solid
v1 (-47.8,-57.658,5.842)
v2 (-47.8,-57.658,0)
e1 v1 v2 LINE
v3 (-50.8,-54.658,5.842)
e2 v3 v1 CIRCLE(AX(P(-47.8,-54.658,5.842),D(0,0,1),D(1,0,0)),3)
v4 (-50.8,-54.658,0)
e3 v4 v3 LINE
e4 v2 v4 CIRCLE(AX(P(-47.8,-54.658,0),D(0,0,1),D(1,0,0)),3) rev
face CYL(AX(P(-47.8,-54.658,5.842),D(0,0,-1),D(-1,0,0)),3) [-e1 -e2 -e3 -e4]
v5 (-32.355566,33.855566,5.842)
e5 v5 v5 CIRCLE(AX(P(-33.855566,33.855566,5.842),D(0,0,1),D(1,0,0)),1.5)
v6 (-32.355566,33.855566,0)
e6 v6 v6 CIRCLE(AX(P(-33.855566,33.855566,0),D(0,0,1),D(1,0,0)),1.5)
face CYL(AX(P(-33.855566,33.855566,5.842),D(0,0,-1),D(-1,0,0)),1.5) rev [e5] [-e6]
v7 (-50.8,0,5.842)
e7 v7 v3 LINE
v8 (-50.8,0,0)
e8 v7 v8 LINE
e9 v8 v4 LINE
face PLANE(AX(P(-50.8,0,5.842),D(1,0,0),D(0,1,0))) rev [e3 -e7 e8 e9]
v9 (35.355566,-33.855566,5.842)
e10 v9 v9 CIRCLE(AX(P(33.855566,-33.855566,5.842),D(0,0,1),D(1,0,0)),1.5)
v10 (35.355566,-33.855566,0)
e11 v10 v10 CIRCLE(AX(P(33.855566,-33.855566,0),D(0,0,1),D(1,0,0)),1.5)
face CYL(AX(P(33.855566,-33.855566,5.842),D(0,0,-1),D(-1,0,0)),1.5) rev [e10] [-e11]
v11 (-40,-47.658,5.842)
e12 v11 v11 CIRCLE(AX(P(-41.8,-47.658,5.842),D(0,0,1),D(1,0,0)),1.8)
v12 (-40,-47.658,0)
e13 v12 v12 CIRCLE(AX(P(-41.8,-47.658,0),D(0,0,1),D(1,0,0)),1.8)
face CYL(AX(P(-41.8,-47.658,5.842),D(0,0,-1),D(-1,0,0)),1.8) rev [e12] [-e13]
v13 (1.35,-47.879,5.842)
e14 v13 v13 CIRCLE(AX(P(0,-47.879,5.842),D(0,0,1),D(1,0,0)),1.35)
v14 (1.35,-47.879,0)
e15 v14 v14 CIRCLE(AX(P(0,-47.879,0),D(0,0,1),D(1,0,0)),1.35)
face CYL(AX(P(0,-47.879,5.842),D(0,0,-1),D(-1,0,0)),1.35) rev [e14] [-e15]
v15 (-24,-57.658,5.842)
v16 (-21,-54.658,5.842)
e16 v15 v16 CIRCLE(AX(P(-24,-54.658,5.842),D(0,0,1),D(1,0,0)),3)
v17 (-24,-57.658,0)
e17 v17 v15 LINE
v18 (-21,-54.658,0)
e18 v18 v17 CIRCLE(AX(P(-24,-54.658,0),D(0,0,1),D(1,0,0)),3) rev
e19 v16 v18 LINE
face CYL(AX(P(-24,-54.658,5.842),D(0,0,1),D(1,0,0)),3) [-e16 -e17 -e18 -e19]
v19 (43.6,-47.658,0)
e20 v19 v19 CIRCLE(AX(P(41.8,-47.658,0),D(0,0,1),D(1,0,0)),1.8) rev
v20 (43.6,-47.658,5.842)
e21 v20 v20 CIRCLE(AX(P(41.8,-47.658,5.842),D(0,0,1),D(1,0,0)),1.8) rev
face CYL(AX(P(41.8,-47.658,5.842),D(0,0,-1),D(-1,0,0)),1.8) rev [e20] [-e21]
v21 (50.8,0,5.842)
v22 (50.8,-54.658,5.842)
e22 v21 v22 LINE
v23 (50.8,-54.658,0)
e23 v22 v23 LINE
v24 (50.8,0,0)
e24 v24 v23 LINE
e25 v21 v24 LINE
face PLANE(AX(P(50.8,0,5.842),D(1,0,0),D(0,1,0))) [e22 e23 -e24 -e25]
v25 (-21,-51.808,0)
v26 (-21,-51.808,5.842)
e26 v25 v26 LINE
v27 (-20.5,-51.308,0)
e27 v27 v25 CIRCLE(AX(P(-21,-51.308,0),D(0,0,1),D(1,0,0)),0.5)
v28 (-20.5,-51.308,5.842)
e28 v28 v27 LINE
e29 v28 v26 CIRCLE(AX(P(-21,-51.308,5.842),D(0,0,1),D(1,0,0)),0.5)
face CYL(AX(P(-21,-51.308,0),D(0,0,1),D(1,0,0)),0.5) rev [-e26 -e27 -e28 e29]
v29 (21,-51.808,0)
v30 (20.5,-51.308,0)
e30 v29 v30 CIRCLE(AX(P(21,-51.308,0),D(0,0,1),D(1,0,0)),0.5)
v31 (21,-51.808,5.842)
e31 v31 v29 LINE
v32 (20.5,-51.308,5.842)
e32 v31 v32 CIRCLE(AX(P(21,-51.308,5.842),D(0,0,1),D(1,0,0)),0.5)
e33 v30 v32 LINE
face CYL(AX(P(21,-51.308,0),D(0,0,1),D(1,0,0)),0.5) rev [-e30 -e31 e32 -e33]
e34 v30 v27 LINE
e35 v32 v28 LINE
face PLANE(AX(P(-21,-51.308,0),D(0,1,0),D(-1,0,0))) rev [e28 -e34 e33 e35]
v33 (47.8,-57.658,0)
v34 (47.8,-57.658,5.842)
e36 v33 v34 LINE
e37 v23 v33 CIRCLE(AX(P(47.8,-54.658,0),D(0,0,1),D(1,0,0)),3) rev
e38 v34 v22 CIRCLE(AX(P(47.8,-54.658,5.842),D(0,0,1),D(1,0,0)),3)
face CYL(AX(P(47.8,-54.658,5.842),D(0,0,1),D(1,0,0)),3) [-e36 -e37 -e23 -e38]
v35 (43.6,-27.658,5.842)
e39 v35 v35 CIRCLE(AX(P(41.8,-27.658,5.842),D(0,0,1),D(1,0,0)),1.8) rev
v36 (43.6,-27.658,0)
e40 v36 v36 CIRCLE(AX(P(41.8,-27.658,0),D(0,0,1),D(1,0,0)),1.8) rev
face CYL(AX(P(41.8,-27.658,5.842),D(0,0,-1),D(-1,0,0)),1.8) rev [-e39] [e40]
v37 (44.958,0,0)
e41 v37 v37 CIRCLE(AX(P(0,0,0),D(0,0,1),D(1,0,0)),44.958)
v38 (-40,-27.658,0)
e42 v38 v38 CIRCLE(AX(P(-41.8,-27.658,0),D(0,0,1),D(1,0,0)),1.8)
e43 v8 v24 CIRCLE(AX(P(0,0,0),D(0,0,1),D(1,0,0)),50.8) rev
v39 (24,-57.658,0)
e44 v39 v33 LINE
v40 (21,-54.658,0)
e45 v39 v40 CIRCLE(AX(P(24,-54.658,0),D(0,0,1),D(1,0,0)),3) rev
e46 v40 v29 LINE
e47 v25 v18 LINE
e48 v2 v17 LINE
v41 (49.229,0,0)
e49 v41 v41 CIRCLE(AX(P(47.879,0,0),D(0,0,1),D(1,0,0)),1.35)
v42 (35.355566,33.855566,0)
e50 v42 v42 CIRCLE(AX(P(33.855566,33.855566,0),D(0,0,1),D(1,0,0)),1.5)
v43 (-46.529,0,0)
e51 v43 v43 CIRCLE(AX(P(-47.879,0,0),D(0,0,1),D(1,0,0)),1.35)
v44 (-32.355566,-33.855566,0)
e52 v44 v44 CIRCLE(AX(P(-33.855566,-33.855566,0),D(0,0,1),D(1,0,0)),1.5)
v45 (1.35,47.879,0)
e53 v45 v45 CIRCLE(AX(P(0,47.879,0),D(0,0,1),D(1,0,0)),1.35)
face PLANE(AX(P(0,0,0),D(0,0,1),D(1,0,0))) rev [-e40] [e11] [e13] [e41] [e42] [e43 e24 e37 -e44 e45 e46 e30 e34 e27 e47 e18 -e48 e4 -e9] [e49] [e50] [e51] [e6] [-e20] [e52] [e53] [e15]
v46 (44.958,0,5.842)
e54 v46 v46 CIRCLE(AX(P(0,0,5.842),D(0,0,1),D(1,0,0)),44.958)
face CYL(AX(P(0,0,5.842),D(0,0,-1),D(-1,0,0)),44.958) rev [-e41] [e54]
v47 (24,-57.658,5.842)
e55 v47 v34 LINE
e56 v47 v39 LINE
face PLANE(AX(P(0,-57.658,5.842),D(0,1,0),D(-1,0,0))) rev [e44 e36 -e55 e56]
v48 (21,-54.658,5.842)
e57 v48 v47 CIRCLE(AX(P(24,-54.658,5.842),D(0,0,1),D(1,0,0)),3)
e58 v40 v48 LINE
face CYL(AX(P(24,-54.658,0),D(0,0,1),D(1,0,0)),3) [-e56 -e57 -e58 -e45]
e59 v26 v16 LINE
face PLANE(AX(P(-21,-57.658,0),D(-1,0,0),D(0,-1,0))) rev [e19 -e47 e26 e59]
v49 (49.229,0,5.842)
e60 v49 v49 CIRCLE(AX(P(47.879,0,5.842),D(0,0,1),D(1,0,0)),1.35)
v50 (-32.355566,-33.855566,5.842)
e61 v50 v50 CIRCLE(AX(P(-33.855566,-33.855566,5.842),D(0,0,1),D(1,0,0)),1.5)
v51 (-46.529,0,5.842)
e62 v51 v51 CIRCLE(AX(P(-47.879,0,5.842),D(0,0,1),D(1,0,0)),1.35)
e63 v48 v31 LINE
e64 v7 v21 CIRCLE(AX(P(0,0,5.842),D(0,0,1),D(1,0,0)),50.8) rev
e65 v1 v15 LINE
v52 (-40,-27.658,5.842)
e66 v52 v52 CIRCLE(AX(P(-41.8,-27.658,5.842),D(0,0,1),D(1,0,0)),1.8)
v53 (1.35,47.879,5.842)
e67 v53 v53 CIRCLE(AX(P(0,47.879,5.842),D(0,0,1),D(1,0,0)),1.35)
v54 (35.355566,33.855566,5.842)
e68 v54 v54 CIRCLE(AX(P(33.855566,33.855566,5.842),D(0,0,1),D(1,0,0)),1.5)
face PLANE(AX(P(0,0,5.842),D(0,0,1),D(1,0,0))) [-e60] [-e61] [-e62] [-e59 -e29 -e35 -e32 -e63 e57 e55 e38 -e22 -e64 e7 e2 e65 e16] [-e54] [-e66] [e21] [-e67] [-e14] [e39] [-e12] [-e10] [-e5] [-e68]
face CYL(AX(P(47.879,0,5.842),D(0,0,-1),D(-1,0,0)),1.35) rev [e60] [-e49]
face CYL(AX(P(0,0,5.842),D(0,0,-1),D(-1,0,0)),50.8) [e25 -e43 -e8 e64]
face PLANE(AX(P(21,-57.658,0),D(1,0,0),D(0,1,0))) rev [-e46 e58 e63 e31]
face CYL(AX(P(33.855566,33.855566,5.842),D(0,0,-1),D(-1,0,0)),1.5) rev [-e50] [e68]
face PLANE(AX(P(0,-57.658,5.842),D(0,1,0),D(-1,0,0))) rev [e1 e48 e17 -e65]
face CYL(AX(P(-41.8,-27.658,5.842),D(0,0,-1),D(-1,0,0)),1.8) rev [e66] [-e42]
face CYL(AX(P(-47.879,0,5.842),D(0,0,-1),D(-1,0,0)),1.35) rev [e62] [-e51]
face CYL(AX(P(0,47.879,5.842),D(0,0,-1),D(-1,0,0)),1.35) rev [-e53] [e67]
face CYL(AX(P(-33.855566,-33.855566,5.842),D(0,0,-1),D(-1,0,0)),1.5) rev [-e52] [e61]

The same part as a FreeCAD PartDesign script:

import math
import FreeCAD as App
import Part
import Sketcher
from FreeCAD import Vector


def edges_at(feature, points):
    """Names of the edges that pass closest to the given points."""
    edges = feature.Shape.Edges
    near = lambda p: min(range(len(edges)), key=lambda i: edges[i].distToShape(Part.Vertex(*p))[0])
    return sorted({f"Edge{near(p) + 1}" for p in points})

doc = App.newDocument("Part")
params = doc.addObject("Spreadsheet::Sheet", "Params")
for row, (alias, value) in enumerate([
    ("sketch1_diameter", "3 mm"),
    ("sketch1_diameter2", "3.6 mm"),
    ("sketch1_diameter3", "2.7 mm"),
    ("sketch1_radius", "50.8 mm"),
    ("pad1_length", "5.842 mm"),
    ("sketch2_width", "42 mm"),
    ("sketch2_height", "6.35 mm"),
    ("sketch3_diameter", "1 mm"),
    ("fillet_radius", "3 mm"),
], start=1):
    params.set(f"A{row}", alias)
    params.set(f"B{row}", "=" + value)
    params.setAlias(f"B{row}", alias)

body = doc.addObject("PartDesign::Body", "Body")

sketch1 = body.newObject("Sketcher::SketchObject", "Sketch")
sketch1.AttachmentSupport = (doc.getObject("XY_Plane"), [""])
sketch1.MapMode = "FlatFace"
sketch1.addGeometry(Part.LineSegment(Vector(-50.8, 0, 0), Vector(-50.8, -57.7, 0)), False)
sketch1.addGeometry(Part.LineSegment(Vector(-50.8, -57.7, 0), Vector(50.8, -57.7, 0)), False)
sketch1.addGeometry(Part.LineSegment(Vector(50.8, -57.7, 0), Vector(50.8, 0, 0)), False)
sketch1.addGeometry(Part.ArcOfCircle(Part.Circle(Vector(0, 0, 0), Vector(0, 0, 1), 50.8), math.radians(0), math.radians(180)), False)
sketch1.addGeometry(Part.Circle(Vector(-41.8, -47.7, 0), Vector(0, 0, 1), 1.8), False)
sketch1.addGeometry(Part.Circle(Vector(-41.8, -27.7, 0), Vector(0, 0, 1), 1.8), False)
sketch1.addGeometry(Part.Circle(Vector(-33.9, -33.9, 0), Vector(0, 0, 1), 1.5), False)
sketch1.addGeometry(Part.Circle(Vector(0, -47.9, 0), Vector(0, 0, 1), 1.4), False)
sketch1.addGeometry(Part.Circle(Vector(41.8, -47.7, 0), Vector(0, 0, 1), 1.8), False)
sketch1.addGeometry(Part.Circle(Vector(33.9, -33.9, 0), Vector(0, 0, 1), 1.5), False)
sketch1.addGeometry(Part.Circle(Vector(41.8, -27.7, 0), Vector(0, 0, 1), 1.8), False)
sketch1.addGeometry(Part.Circle(Vector(-47.9, 0, 0), Vector(0, 0, 1), 1.4), False)
sketch1.addGeometry(Part.Circle(Vector(-33.9, 33.9, 0), Vector(0, 0, 1), 1.5), False)
sketch1.addGeometry(Part.Circle(Vector(0, 0, 0), Vector(0, 0, 1), 45), False)
sketch1.addGeometry(Part.Circle(Vector(47.9, 0, 0), Vector(0, 0, 1), 1.4), False)
sketch1.addGeometry(Part.Circle(Vector(0, 47.9, 0), Vector(0, 0, 1), 1.4), False)
sketch1.addGeometry(Part.Circle(Vector(33.9, 33.9, 0), Vector(0, 0, 1), 1.5), False)
sketch1.addConstraint(Sketcher.Constraint("Coincident", 0, 2, 1, 1))
sketch1.addConstraint(Sketcher.Constraint("Coincident", 1, 2, 2, 1))
sketch1.addConstraint(Sketcher.Constraint("Tangent", 2, 2, 3, 1))
sketch1.addConstraint(Sketcher.Constraint("Tangent", 3, 2, 0, 1))
sketch1.addConstraint(Sketcher.Constraint("Vertical", 0))
sketch1.addConstraint(Sketcher.Constraint("Horizontal", 1))
sketch1.addConstraint(Sketcher.Constraint("Vertical", 2))
sketch1.addConstraint(Sketcher.Constraint("Coincident", 3, 3, -1, 1))
sketch1.addConstraint(Sketcher.Constraint("Coincident", 13, 3, -1, 1))
sketch1.addConstraint(Sketcher.Constraint("Equal", 4, 5))
sketch1.addConstraint(Sketcher.Constraint("Equal", 5, 8))
sketch1.addConstraint(Sketcher.Constraint("Equal", 6, 9))
sketch1.addConstraint(Sketcher.Constraint("Equal", 8, 10))
sketch1.addConstraint(Sketcher.Constraint("Equal", 7, 11))
sketch1.addConstraint(Sketcher.Constraint("Equal", 9, 12))
sketch1.addConstraint(Sketcher.Constraint("Equal", 11, 14))
sketch1.addConstraint(Sketcher.Constraint("Equal", 14, 15))
sketch1.addConstraint(Sketcher.Constraint("Equal", 12, 16))
sketch1.addConstraint(Sketcher.Constraint("Symmetric", 9, 3, 12, 3, -1, 1))
sketch1.addConstraint(Sketcher.Constraint("Symmetric", 11, 3, 14, 3, -1, 1))
sketch1.addConstraint(Sketcher.Constraint("Symmetric", 7, 3, 15, 3, -1, 1))
sketch1.addConstraint(Sketcher.Constraint("Symmetric", 6, 3, 16, 3, -1, 1))
sketch1.addConstraint(Sketcher.Constraint("Symmetric", 4, 3, 8, 3, -2))
sketch1.addConstraint(Sketcher.Constraint("Symmetric", 6, 3, 9, 3, -2))
sketch1.addConstraint(Sketcher.Constraint("Symmetric", 5, 3, 10, 3, -2))
sketch1.addConstraint(Sketcher.Constraint("PointOnObject", 7, 3, -2))
sketch1.addConstraint(Sketcher.Constraint("PointOnObject", 11, 3, -1))
sketch1.addConstraint(Sketcher.Constraint("Vertical", 4, 3, 5, 3))
sketch1.addConstraint(Sketcher.Constraint("Diameter", 6, 3.0))
sketch1.addConstraint(Sketcher.Constraint("Diameter", 4, 3.6))
sketch1.addConstraint(Sketcher.Constraint("Diameter", 7, 2.7))
sketch1.addConstraint(Sketcher.Constraint("Radius", 3, 50.8))
sketch1.addConstraint(Sketcher.Constraint("Diameter", 13, 89.916))
sketch1.addConstraint(Sketcher.Constraint("DistanceY", 4, 3, 5, 3, 20.0))
sketch1.addConstraint(Sketcher.Constraint("DistanceX", 0, 2, 4, 3, 9.0))
sketch1.addConstraint(Sketcher.Constraint("DistanceY", 0, 2, 4, 3, 10.0))
sketch1.addConstraint(Sketcher.Constraint("DistanceY", 0, 2, 0, 1, 57.658))
sketch1.addConstraint(Sketcher.Constraint("DistanceY", 7, 3, -1, 1, 47.879))
sketch1.addConstraint(Sketcher.Constraint("DistanceX", 11, 3, -1, 1, 47.879))
sketch1.addConstraint(Sketcher.Constraint("DistanceX", 6, 3, 9, 3, 67.711131))
sketch1.addConstraint(Sketcher.Constraint("DistanceY", 6, 3, 12, 3, 67.711131))
sketch1.setExpression("Constraints[28]", "Params.sketch1_diameter")
sketch1.setExpression("Constraints[29]", "Params.sketch1_diameter2")
sketch1.setExpression("Constraints[30]", "Params.sketch1_diameter3")
sketch1.setExpression("Constraints[31]", "Params.sketch1_radius")
pad1 = body.newObject("PartDesign::Pad", "Pad")
pad1.Profile = sketch1
pad1.setExpression("Length", "Params.pad1_length")

sketch2 = body.newObject("Sketcher::SketchObject", "Sketch001")
sketch2.AttachmentSupport = (doc.getObject("XY_Plane"), [""])
sketch2.MapMode = "FlatFace"
sketch2.AttachmentOffset = App.Placement(Vector(0, 0, 5.842), App.Rotation())
sketch2.addGeometry(Part.LineSegment(Vector(-21, -51, 0), Vector(-21, -58, 0)), False)
sketch2.addGeometry(Part.LineSegment(Vector(-21, -58, 0), Vector(21, -58, 0)), False)
sketch2.addGeometry(Part.LineSegment(Vector(21, -58, 0), Vector(21, -51, 0)), False)
sketch2.addGeometry(Part.LineSegment(Vector(21, -51, 0), Vector(-21, -51, 0)), False)
sketch2.addConstraint(Sketcher.Constraint("Coincident", 0, 2, 1, 1))
sketch2.addConstraint(Sketcher.Constraint("Coincident", 1, 2, 2, 1))
sketch2.addConstraint(Sketcher.Constraint("Coincident", 2, 2, 3, 1))
sketch2.addConstraint(Sketcher.Constraint("Coincident", 3, 2, 0, 1))
sketch2.addConstraint(Sketcher.Constraint("Vertical", 0))
sketch2.addConstraint(Sketcher.Constraint("Horizontal", 1))
sketch2.addConstraint(Sketcher.Constraint("Vertical", 2))
sketch2.addConstraint(Sketcher.Constraint("Horizontal", 3))
sketch2.addConstraint(Sketcher.Constraint("DistanceX", 1, 1, 1, 2, 42.0))
sketch2.addConstraint(Sketcher.Constraint("DistanceX", 0, 2, -1, 1, 21.0))
sketch2.addConstraint(Sketcher.Constraint("DistanceY", 0, 2, 0, 1, 6.35))
sketch2.addConstraint(Sketcher.Constraint("DistanceY", 0, 2, -1, 1, 57.658))
sketch2.setExpression("Constraints[8]", "Params.sketch2_width")
sketch2.setExpression("Constraints[10]", "Params.sketch2_height")
pocket1 = body.newObject("PartDesign::Pocket", "Pocket")
pocket1.Profile = sketch2
pocket1.Type = "ThroughAll"

sketch3 = body.newObject("Sketcher::SketchObject", "Sketch002")
sketch3.AttachmentSupport = (doc.getObject("XY_Plane"), [""])
sketch3.MapMode = "FlatFace"
sketch3.AttachmentOffset = App.Placement(Vector(0, 0, 5.842), App.Rotation())
sketch3.addGeometry(Part.Circle(Vector(-21, -51.3, 0), Vector(0, 0, 1), 0.5), False)
sketch3.addGeometry(Part.Circle(Vector(21, -51.3, 0), Vector(0, 0, 1), 0.5), False)
sketch3.addConstraint(Sketcher.Constraint("Equal", 0, 1))
sketch3.addConstraint(Sketcher.Constraint("Symmetric", 0, 3, 1, 3, -2))
sketch3.addConstraint(Sketcher.Constraint("Diameter", 0, 1.0))
sketch3.addConstraint(Sketcher.Constraint("DistanceX", 0, 3, -1, 1, 21.0))
sketch3.addConstraint(Sketcher.Constraint("DistanceY", 0, 3, -1, 1, 51.308))
sketch3.setExpression("Constraints[2]", "Params.sketch3_diameter")
pocket2 = body.newObject("PartDesign::Pocket", "Pocket001")
pocket2.Profile = sketch3
pocket2.Type = "ThroughAll"
doc.recompute()

fillet = body.newObject("PartDesign::Fillet", "Fillet")
fillet.Base = (pocket2, edges_at(pocket2, [
    (50.8, -57.658, 2.921),
    (-50.8, -57.658, 2.921),
    (-21, -57.658, 2.921),
    (21, -57.658, 2.921),
]))
fillet.setExpression("Radius", "Params.fillet_radius")

doc.recompute()
